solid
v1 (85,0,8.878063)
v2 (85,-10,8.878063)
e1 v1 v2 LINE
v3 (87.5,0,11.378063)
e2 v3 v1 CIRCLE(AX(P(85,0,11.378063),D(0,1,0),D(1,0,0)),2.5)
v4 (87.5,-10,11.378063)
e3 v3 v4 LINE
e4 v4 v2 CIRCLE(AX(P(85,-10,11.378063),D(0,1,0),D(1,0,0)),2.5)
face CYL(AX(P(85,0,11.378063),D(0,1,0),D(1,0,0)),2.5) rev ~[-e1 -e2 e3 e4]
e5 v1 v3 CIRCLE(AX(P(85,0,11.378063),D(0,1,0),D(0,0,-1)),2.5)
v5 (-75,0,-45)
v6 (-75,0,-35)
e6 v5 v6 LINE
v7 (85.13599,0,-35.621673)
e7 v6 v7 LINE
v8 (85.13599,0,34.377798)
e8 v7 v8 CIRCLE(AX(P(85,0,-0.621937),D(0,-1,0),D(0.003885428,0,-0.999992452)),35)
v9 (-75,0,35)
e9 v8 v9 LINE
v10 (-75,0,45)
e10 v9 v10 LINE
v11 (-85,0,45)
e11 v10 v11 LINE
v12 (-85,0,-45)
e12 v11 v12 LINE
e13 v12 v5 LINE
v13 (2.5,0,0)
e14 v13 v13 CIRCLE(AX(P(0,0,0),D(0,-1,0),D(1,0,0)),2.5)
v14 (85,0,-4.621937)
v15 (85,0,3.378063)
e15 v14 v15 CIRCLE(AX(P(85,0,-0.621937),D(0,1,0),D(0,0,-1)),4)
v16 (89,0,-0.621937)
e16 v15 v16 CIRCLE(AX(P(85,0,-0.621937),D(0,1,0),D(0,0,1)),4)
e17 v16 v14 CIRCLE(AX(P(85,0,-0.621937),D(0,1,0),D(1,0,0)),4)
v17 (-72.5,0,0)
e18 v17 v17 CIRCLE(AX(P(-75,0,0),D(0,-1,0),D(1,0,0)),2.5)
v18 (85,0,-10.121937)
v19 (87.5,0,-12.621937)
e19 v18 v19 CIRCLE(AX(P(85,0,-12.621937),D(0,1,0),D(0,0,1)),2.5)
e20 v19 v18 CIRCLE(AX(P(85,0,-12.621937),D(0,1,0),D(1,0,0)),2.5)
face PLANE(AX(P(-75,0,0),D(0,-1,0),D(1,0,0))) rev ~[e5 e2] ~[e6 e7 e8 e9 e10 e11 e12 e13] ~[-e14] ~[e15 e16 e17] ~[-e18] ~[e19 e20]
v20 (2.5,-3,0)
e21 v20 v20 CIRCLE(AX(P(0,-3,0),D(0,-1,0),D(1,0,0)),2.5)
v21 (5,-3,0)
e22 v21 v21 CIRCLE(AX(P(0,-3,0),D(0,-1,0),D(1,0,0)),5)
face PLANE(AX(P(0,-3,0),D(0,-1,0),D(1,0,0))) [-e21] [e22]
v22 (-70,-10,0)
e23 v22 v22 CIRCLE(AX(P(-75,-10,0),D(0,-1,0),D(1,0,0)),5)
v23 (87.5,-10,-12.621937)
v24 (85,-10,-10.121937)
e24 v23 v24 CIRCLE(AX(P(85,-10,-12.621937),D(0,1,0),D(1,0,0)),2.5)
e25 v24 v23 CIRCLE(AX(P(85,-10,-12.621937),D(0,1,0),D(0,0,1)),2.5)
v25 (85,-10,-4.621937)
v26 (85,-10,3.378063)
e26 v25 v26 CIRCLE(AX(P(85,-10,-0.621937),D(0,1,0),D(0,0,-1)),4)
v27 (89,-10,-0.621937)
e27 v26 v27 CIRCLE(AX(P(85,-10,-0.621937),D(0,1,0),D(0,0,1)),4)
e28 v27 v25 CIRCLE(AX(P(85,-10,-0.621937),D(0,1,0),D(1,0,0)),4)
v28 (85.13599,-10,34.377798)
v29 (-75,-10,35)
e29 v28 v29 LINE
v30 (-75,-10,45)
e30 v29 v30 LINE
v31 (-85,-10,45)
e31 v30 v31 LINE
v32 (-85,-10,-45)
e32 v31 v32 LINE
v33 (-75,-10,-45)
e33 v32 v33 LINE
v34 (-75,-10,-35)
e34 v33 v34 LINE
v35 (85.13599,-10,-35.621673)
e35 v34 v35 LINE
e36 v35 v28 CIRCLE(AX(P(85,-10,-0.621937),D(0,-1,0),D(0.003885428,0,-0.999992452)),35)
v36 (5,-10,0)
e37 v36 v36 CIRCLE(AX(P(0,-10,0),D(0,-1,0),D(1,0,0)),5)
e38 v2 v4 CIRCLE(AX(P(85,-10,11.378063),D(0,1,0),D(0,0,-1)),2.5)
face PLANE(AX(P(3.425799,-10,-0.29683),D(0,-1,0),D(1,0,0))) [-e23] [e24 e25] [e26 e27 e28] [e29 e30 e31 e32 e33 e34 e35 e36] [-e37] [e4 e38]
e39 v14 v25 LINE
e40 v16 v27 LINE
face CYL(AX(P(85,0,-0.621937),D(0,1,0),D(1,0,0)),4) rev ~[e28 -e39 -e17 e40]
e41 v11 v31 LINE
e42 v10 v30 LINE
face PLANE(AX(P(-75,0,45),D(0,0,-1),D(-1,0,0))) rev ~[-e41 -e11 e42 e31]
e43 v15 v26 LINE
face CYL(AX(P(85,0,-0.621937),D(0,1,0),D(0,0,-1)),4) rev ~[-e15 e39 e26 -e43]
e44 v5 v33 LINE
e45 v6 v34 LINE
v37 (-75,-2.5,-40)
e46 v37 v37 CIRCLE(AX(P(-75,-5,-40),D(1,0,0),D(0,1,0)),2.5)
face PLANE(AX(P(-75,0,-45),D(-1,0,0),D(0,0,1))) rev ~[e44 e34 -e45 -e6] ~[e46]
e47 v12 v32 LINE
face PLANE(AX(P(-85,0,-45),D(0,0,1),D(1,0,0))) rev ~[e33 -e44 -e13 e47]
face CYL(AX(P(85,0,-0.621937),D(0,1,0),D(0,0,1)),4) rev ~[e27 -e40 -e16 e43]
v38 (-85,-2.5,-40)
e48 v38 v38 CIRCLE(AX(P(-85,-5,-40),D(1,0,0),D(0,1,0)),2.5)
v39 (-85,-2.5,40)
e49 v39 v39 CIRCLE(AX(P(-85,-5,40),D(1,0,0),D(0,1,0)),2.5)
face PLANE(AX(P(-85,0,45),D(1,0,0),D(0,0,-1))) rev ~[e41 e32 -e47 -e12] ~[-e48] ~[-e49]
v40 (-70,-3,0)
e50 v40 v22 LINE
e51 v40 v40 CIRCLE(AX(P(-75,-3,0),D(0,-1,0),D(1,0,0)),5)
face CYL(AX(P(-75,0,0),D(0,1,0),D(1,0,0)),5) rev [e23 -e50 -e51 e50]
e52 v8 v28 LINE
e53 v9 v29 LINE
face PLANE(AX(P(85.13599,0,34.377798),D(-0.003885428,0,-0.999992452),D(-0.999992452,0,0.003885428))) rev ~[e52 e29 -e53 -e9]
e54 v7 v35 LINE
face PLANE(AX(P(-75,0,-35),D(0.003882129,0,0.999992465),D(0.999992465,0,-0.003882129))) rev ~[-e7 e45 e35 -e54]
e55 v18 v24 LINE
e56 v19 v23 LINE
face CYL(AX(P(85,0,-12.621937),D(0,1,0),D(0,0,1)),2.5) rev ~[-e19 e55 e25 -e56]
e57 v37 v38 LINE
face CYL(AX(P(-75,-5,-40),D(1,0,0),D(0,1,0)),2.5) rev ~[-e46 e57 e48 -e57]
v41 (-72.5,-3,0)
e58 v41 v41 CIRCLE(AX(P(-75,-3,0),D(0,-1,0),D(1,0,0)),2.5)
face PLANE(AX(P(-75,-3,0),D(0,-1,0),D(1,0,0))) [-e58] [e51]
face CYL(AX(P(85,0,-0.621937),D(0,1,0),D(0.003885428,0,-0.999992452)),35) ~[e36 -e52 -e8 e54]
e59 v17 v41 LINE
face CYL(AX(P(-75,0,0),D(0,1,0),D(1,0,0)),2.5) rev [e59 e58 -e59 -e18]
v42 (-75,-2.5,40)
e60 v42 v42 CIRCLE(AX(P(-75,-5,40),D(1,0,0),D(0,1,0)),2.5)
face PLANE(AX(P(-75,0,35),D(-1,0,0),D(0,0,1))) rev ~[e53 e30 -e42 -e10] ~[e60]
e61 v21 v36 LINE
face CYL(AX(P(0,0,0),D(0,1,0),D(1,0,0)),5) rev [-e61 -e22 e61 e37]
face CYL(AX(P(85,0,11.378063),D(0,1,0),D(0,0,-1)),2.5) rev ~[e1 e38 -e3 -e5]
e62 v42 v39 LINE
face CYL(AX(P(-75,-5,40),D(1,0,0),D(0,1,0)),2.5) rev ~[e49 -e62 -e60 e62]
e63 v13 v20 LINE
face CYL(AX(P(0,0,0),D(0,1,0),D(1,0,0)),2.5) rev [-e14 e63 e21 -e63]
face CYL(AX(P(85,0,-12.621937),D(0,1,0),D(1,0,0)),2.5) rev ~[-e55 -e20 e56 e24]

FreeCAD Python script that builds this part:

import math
import FreeCAD as App
import Part
import Sketcher
Q = App.Units.Quantity

doc = App.newDocument("Part")
params = doc.addObject("Spreadsheet::Sheet", "Params")
for row, (alias, value) in enumerate([
    ("sketch1_diameter", "10 mm"),
    ("sketch1_radius", "35 mm"),
    ("sketch1_radius2", "4 mm"),
    ("sketch1_radius3", "2.5 mm"),
    ("sketch1_width", "10 mm"),
    ("pad1_length", "10 mm"),
    ("sketch2_diameter", "5 mm"),
    ("pocket1_length", "25 mm"),
    ("sketch3_diameter", "5 mm"),
    ("pocket2_length", "25 mm"),
    ("sketch4_diameter", "10 mm"),
    ("sketch4_diameter2", "5 mm"),
    ("pad2_length", "3 mm"),
], start=1):
    params.set(f"A{row}", alias)
    params.set(f"B{row}", "=" + value)
    params.setAlias(f"B{row}", alias)

body = doc.addObject("PartDesign::Body", "Body")

# Sketch on XZ plane
sketch1 = body.newObject("Sketcher::SketchObject", "Sketch")
sketch1.AttachmentSupport = (doc.getObject("XZ_Plane"), [""])
sketch1.MapMode = "FlatFace"
sketch1.addGeometry([
    Part.LineSegment(App.Vector(-75, 45, 0), App.Vector(-85, 45, 0)),  # 0
    Part.LineSegment(App.Vector(-85, 45, 0), App.Vector(-85, -45, 0)),  # 1
    Part.LineSegment(App.Vector(-85, -45, 0), App.Vector(-75, -45, 0)),  # 2
    Part.LineSegment(App.Vector(-75, -45, 0), App.Vector(-75, -35, 0)),  # 3
    Part.LineSegment(App.Vector(-75, -35, 0), App.Vector(85.1, -35.6, 0)),  # 4
    Part.ArcOfCircle(Part.Circle(App.Vector(85, -0.6, 0), App.Vector(0, 0, 1), 35), math.radians(-90), math.radians(90)),  # 5
    Part.LineSegment(App.Vector(85.1, 34.4, 0), App.Vector(-75, 35, 0)),  # 6
    Part.LineSegment(App.Vector(-75, 35, 0), App.Vector(-75, 45, 0)),  # 7
    Part.ArcOfCircle(Part.Circle(App.Vector(85, -12.6, 0), App.Vector(0, 0, 1), 2.5), math.radians(0), math.radians(90)),  # 8
    Part.ArcOfCircle(Part.Circle(App.Vector(85, -12.6, 0), App.Vector(0, 0, 1), 2.5), math.radians(90), math.radians(360)),  # 9
    Part.ArcOfCircle(Part.Circle(App.Vector(85, -0.6, 0), App.Vector(0, 0, 1), 4), math.radians(90), math.radians(270)),  # 10
    Part.ArcOfCircle(Part.Circle(App.Vector(85, -0.6, 0), App.Vector(0, 0, 1), 4), math.radians(0), math.radians(90)),  # 11
    Part.ArcOfCircle(Part.Circle(App.Vector(85, -0.6, 0), App.Vector(0, 0, 1), 4), math.radians(-90), math.radians(0)),  # 12
    Part.Circle(App.Vector(-75, 0, 0), App.Vector(0, 0, 1), 5),  # 13
    Part.Circle(App.Vector(0, 0, 0), App.Vector(0, 0, 1), 5),  # 14
    Part.ArcOfCircle(Part.Circle(App.Vector(85, 11.4, 0), App.Vector(0, 0, 1), 2.5), math.radians(0), math.radians(270)),  # 15
    Part.ArcOfCircle(Part.Circle(App.Vector(85, 11.4, 0), App.Vector(0, 0, 1), 2.5), math.radians(-90), math.radians(0)),  # 16
], False)
sketch1.addConstraint([
    Sketcher.Constraint("Coincident", 0, 2, 1, 1),
    Sketcher.Constraint("Coincident", 1, 2, 2, 1),
    Sketcher.Constraint("Coincident", 2, 2, 3, 1),
    Sketcher.Constraint("Coincident", 3, 2, 4, 1),
    Sketcher.Constraint("Coincident", 4, 2, 5, 1),
    Sketcher.Constraint("Tangent", 5, 2, 6, 1),
    Sketcher.Constraint("Coincident", 6, 2, 7, 1),
    Sketcher.Constraint("Coincident", 7, 2, 0, 1),
    Sketcher.Constraint("Tangent", 8, 1, 9, 2),
    Sketcher.Constraint("Coincident", 9, 1, 8, 2),
    Sketcher.Constraint("Tangent", 10, 1, 11, 2),
    Sketcher.Constraint("Tangent", 11, 1, 12, 2),
    Sketcher.Constraint("Tangent", 12, 1, 10, 2),
    Sketcher.Constraint("Tangent", 15, 1, 16, 2),
    Sketcher.Constraint("Coincident", 16, 1, 15, 2),
    Sketcher.Constraint("Horizontal", 0),
    Sketcher.Constraint("Vertical", 1),
    Sketcher.Constraint("Horizontal", 2),
    Sketcher.Constraint("Vertical", 3),
    Sketcher.Constraint("Vertical", 7),
    Sketcher.Constraint("Coincident", 14, 3, -1, 1),
    Sketcher.Constraint("Coincident", 10, 3, 5, 3),
    Sketcher.Constraint("Equal", 13, 14),
    Sketcher.Constraint("Equal", 9, 15),
    Sketcher.Constraint("Symmetric", 3, 2, 6, 2, -1),
    Sketcher.Constraint("PointOnObject", 13, 3, -1),
    Sketcher.Constraint("Horizontal", 9, 3, 8, 1),
    Sketcher.Constraint("Horizontal", 12, 3, 11, 1),
    Sketcher.Constraint("Horizontal", 16, 3, 15, 1),
    Sketcher.Constraint("Vertical", 5, 3, 8, 3),
    Sketcher.Constraint("Vertical", 12, 3, 15, 3),
    Sketcher.Constraint("Vertical", 13, 3, 2, 2),
    Sketcher.Constraint("Vertical", 4, 2, 5, 2),
    Sketcher.Constraint("Vertical", 16, 3, 9, 1),
    Sketcher.Constraint("Vertical", 9, 1, 10, 1),
    Sketcher.Constraint("Vertical", 10, 1, 12, 1),
    Sketcher.Constraint("Vertical", 12, 1, 16, 1),
    Sketcher.Constraint("Equal", 2, 3),
    Sketcher.Constraint("Equal", 3, 7),
    Sketcher.Constraint("Diameter", 13, Q("10 mm")),
    Sketcher.Constraint("Radius", 5, Q("35 mm")),
    Sketcher.Constraint("Radius", 10, Q("4 mm")),
    Sketcher.Constraint("Radius", 8, Q("2.5 mm")),
    Sketcher.Constraint("DistanceX", 0, 2, 0, 1, Q("10 mm")),
    Sketcher.Constraint("DistanceY", 1, 2, 1, 1, Q("90 mm")),
    Sketcher.Constraint("DistanceX", -1, 1, 5, 3, Q("85 mm")),
    Sketcher.Constraint("DistanceX", 13, 3, -1, 1, Q("75 mm")),
    Sketcher.Constraint("DistanceY", 8, 3, 5, 3, Q("12 mm")),
    Sketcher.Constraint("DistanceY", 5, 3, 15, 3, Q("12 mm")),
    Sketcher.Constraint("Distance", 6, Q("160.137199 mm")),
])
sketch1.setExpression("Constraints[39]", "Params.sketch1_diameter")
sketch1.setExpression("Constraints[40]", "Params.sketch1_radius")
sketch1.setExpression("Constraints[41]", "Params.sketch1_radius2")
sketch1.setExpression("Constraints[42]", "Params.sketch1_radius3")
sketch1.setExpression("Constraints[43]", "Params.sketch1_width")
pad1 = body.newObject("PartDesign::Pad", "Pad")
pad1.Profile = sketch1
pad1.setExpression("Length", "Params.pad1_length")

# Sketch on YZ plane
sketch2 = body.newObject("Sketcher::SketchObject", "Sketch001")
sketch2.AttachmentSupport = (doc.getObject("YZ_Plane"), [""])
sketch2.MapMode = "FlatFace"
sketch2.AttachmentOffset = App.Placement(App.Vector(0, 0, -75), App.Rotation())
sketch2.addGeometry(Part.Circle(App.Vector(-5, 40, 0), App.Vector(0, 0, 1), 2.5), False)
sketch2.addConstraint([
    Sketcher.Constraint("Diameter", 0, Q("5 mm")),
    Sketcher.Constraint("DistanceX", 0, 3, -1, 1, Q("5 mm")),
    Sketcher.Constraint("DistanceY", -1, 1, 0, 3, Q("40 mm")),
])
sketch2.setExpression("Constraints[0]", "Params.sketch2_diameter")
pocket1 = body.newObject("PartDesign::Pocket", "Pocket")
pocket1.Profile = sketch2
pocket1.setExpression("Length", "Params.pocket1_length")

# Sketch on YZ plane
sketch3 = body.newObject("Sketcher::SketchObject", "Sketch002")
sketch3.AttachmentSupport = (doc.getObject("YZ_Plane"), [""])
sketch3.MapMode = "FlatFace"
sketch3.AttachmentOffset = App.Placement(App.Vector(0, 0, -75), App.Rotation())
sketch3.addGeometry(Part.Circle(App.Vector(-5, -40, 0), App.Vector(0, 0, 1), 2.5), False)
sketch3.addConstraint([
    Sketcher.Constraint("Diameter", 0, Q("5 mm")),
    Sketcher.Constraint("DistanceX", 0, 3, -1, 1, Q("5 mm")),
    Sketcher.Constraint("DistanceY", 0, 3, -1, 1, Q("40 mm")),
])
sketch3.setExpression("Constraints[0]", "Params.sketch3_diameter")
pocket2 = body.newObject("PartDesign::Pocket", "Pocket001")
pocket2.Profile = sketch3
pocket2.setExpression("Length", "Params.pocket2_length")

# Sketch on XZ plane
sketch4 = body.newObject("Sketcher::SketchObject", "Sketch003")
sketch4.AttachmentSupport = (doc.getObject("XZ_Plane"), [""])
sketch4.MapMode = "FlatFace"
sketch4.addGeometry([
    Part.Circle(App.Vector(-75, 0, 0), App.Vector(0, 0, 1), 5),
    Part.Circle(App.Vector(-75, 0, 0), App.Vector(0, 0, 1), 2.5),
    Part.Circle(App.Vector(0, 0, 0), App.Vector(0, 0, 1), 5),
    Part.Circle(App.Vector(0, 0, 0), App.Vector(0, 0, 1), 2.5),
], False)
sketch4.addConstraint([
    Sketcher.Constraint("Coincident", 2, 3, -1, 1),
    Sketcher.Constraint("Coincident", 3, 3, -1, 1),
    Sketcher.Constraint("Coincident", 1, 3, 0, 3),
    Sketcher.Constraint("Equal", 0, 2),
    Sketcher.Constraint("Equal", 1, 3),
    Sketcher.Constraint("PointOnObject", 0, 3, -1),
    Sketcher.Constraint("Diameter", 0, Q("10 mm")),
    Sketcher.Constraint("Diameter", 1, Q("5 mm")),
    Sketcher.Constraint("DistanceX", 0, 3, -1, 1, Q("75 mm")),
])
sketch4.setExpression("Constraints[6]", "Params.sketch4_diameter")
sketch4.setExpression("Constraints[7]", "Params.sketch4_diameter2")
pad2 = body.newObject("PartDesign::Pad", "Pad001")
pad2.Profile = sketch4
pad2.setExpression("Length", "Params.pad2_length")

doc.recompute()
